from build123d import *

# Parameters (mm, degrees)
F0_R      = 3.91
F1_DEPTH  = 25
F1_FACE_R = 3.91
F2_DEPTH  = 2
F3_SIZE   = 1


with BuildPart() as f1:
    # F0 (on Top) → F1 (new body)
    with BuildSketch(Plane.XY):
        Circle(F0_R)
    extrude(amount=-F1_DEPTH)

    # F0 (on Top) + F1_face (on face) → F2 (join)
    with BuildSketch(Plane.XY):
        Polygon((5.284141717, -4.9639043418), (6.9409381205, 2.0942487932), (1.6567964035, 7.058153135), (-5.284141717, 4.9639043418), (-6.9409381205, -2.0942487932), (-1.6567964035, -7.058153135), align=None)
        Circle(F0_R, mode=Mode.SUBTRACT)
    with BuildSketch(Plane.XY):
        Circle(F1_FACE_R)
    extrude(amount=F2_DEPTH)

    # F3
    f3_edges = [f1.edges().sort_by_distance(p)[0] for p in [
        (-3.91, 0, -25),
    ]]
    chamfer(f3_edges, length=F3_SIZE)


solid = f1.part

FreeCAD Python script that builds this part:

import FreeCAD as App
import Part
import Sketcher


def edges_at(feature, points):
    """Names of the edges that pass closest to the given points."""
    edges = feature.Shape.Edges
    near = lambda p: min(range(len(edges)), key=lambda i: edges[i].distToShape(Part.Vertex(*p))[0])
    return sorted({f"Edge{near(p) + 1}" for p in points})

doc = App.newDocument("Part")
body = doc.addObject("PartDesign::Body", "Body")

sketch1 = body.newObject("Sketcher::SketchObject", "Sketch")
sketch1.AttachmentSupport = (doc.getObject("XY_Plane"), [""])
sketch1.MapMode = "FlatFace"
sketch1.addGeometry(Part.Circle(App.Vector(0, 0, 0), App.Vector(0, 0, 1), 3.9), False)
sketch1.addConstraint([
    Sketcher.Constraint("Coincident", 0, 3, -1, 1),
    Sketcher.Constraint("Diameter", 0, 7.82),
])
pad1 = body.newObject("PartDesign::Pad", "Pad")
pad1.Profile = sketch1
pad1.Length = 25
pad1.Reversed = True

sketch2 = body.newObject("Sketcher::SketchObject", "Sketch001")
sketch2.AttachmentSupport = (doc.getObject("XY_Plane"), [""])
sketch2.MapMode = "FlatFace"
sketch2.addGeometry([
    Part.LineSegment(App.Vector(5, -5, 0), App.Vector(7, 2, 0)),
    Part.LineSegment(App.Vector(7, 2, 0), App.Vector(2, 7, 0)),
    Part.LineSegment(App.Vector(2, 7, 0), App.Vector(-5, 5, 0)),
    Part.LineSegment(App.Vector(-5, 5, 0), App.Vector(-7, -2, 0)),
    Part.LineSegment(App.Vector(-7, -2, 0), App.Vector(-2, -7, 0)),
    Part.LineSegment(App.Vector(-2, -7, 0), App.Vector(5, -5, 0)),
], False)
sketch2.addConstraint([
    Sketcher.Constraint("Coincident", 0, 2, 1, 1),
    Sketcher.Constraint("Coincident", 1, 2, 2, 1),
    Sketcher.Constraint("Coincident", 2, 2, 3, 1),
    Sketcher.Constraint("Coincident", 3, 2, 4, 1),
    Sketcher.Constraint("Coincident", 4, 2, 5, 1),
    Sketcher.Constraint("Coincident", 5, 2, 0, 1),
    Sketcher.Constraint("Symmetric", 0, 2, 3, 2, -1, 1),
    Sketcher.Constraint("Symmetric", 1, 2, 4, 2, -1, 1),
    Sketcher.Constraint("Symmetric", 2, 2, 5, 2, -1, 1),
    Sketcher.Constraint("Equal", 0, 1),
    Sketcher.Constraint("Equal", 1, 2),
    Sketcher.Constraint("Distance", 0, 7.25),
    Sketcher.Constraint("DistanceY", 3, 2, 1, 2, 9.152402),
    Sketcher.Constraint("DistanceX", -1, 1, 0, 2, 6.940938),
    Sketcher.Constraint("DistanceY", -1, 1, 0, 2, 2.094249),
])
pad2 = body.newObject("PartDesign::Pad", "Pad001")
pad2.Profile = sketch2
pad2.Length = 2
doc.recompute()

chamfer = body.newObject("PartDesign::Chamfer", "Chamfer")
chamfer.Base = (pad2, edges_at(pad2, [(-3.91, 0, -25)]))
chamfer.Size = 1

doc.recompute()
